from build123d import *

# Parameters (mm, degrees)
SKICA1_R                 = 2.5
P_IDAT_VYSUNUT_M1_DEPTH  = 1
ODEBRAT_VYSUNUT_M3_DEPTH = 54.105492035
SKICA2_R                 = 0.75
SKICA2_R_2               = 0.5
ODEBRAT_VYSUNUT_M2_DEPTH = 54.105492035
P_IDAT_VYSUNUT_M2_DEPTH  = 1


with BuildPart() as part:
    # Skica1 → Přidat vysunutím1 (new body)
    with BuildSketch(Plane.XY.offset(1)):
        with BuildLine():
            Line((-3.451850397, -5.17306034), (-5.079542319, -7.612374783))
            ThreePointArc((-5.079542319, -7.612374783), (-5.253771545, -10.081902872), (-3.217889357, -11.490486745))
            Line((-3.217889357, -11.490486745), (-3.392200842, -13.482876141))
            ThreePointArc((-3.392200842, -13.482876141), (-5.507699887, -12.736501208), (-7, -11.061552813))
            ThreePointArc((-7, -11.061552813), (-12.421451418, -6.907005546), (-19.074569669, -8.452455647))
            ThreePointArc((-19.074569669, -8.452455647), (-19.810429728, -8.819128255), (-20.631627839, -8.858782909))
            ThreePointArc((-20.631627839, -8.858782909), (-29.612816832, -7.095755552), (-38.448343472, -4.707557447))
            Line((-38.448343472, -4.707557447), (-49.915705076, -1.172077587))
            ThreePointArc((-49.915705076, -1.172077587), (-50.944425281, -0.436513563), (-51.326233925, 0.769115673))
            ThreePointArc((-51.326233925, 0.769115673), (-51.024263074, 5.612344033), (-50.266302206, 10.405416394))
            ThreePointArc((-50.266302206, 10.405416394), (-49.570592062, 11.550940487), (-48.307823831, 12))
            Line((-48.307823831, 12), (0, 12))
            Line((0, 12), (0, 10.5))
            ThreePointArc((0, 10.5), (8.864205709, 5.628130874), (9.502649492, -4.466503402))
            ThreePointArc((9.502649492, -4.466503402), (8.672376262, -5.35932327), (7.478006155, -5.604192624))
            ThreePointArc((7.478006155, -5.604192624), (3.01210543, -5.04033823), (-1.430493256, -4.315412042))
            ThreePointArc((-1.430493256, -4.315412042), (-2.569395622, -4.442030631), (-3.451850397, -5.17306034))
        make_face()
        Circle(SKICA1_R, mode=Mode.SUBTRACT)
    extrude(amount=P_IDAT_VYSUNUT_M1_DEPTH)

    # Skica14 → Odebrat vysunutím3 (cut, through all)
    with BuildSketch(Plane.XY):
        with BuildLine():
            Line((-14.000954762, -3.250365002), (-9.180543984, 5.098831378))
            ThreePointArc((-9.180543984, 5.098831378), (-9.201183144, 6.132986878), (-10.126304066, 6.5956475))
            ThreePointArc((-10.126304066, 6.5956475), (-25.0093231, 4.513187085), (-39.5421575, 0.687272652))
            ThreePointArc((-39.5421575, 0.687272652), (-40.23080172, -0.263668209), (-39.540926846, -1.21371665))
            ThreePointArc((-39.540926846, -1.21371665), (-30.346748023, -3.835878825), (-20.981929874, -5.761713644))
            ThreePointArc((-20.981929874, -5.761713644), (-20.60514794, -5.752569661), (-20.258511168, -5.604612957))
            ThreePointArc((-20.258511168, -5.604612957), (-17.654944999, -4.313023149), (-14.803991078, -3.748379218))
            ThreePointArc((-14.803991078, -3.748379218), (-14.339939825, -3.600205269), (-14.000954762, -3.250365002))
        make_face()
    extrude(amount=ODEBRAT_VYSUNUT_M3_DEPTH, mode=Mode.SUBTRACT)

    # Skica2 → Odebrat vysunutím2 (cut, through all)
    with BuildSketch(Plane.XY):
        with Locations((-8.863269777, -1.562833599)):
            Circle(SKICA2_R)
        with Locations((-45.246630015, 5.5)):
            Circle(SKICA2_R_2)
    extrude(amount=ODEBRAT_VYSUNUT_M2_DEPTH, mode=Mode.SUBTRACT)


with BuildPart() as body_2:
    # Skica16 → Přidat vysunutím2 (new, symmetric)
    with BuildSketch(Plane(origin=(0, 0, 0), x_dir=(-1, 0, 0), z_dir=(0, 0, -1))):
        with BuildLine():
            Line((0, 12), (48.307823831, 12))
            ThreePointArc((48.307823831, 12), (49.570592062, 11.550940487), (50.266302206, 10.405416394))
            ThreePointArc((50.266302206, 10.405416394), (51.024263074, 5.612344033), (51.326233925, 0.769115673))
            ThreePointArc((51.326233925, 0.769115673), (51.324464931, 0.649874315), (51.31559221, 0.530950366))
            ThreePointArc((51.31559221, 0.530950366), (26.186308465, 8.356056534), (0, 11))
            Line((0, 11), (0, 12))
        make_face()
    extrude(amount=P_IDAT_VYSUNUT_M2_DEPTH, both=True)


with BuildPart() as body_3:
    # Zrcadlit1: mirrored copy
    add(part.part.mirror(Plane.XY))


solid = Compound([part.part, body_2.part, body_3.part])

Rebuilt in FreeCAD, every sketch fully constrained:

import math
import FreeCAD as App
import Part
import Sketcher

V = App.Vector
Q = App.Units.Quantity

doc = App.newDocument("Part")
body = doc.addObject("PartDesign::Body", "Body")

# Sketch on XY plane
sketch1 = doc.addObject("Sketcher::SketchObject", "Sketch")
body.addObject(sketch1)
sketch1.AttachmentSupport = (doc.XY_Plane, [""])
sketch1.MapMode = "FlatFace"
sketch1.AttachmentOffset = App.Placement(V(0, 0, 1), App.Rotation())
sketch1.addGeometry([
    Part.LineSegment(V(-5.1, -7.6, 0), V(-3.5, -5.2, 0)),  # 0
    Part.ArcOfCircle(Part.Circle(V(-1.8, -6.3, 0), V(0, 0, 1), 2), math.radians(80), math.radians(146)),  # 1
    Part.ArcOfCircle(Part.Circle(V(20.8, 118.2, 0), V(0, 0, 1), 124.5), math.radians(-100.3), math.radians(-96.16)),  # 2
    Part.ArcOfCircle(Part.Circle(V(7.7, -3.6, 0), V(0, 0, 1), 2), math.radians(-96), math.radians(-25)),  # 3
    Part.ArcOfCircle(Part.Circle(V(0, 0, 0), V(0, 0, 1), 10.5), math.radians(-25), math.radians(90)),  # 4
    Part.LineSegment(V(0, 10.5, 0), V(0, 12, 0)),  # 5
    Part.LineSegment(V(0, 12, 0), V(-48.3, 12, 0)),  # 6
    Part.ArcOfCircle(Part.Circle(V(-48.3, 10, 0), V(0, 0, 1), 2), math.radians(90), math.radians(168)),  # 7
    Part.ArcOfCircle(Part.Circle(V(0, 0, 0), V(0, 0, 1), 51.3), math.radians(168.3), math.radians(179.14)),  # 8
    Part.ArcOfCircle(Part.Circle(V(-49.3, 0.7, 0), V(0, 0, 1), 2), math.radians(179), math.radians(253)),  # 9
    Part.LineSegment(V(-49.9, -1.2, 0), V(-38.4, -4.7, 0)),  # 10
    Part.ArcOfCircle(Part.Circle(V(0, 120, 0), V(0, 0, 1), 130.5), math.radians(-107.13), math.radians(-99.1)),  # 11
    Part.ArcOfCircle(Part.Circle(V(-20.3, -6.9, 0), V(0, 0, 1), 2), math.radians(-99), math.radians(-52)),  # 12
    Part.ArcOfCircle(Part.Circle(V(-14.1, -14.7, 0), V(0, 0, 1), 8), math.radians(27), math.radians(128)),  # 13
    Part.ArcOfCircle(Part.Circle(V(-3, -9, 0), V(0, 0, 1), 4.5), math.radians(-153), math.radians(-95)),  # 14
    Part.LineSegment(V(-3.4, -13.5, 0), V(-3.2, -11.5, 0)),  # 15
    Part.ArcOfCircle(Part.Circle(V(-3, -9, 0), V(0, 0, 1), 2.5), math.radians(146), math.radians(265)),  # 16
    Part.Circle(V(0, 0, 0), V(0, 0, 1), 2.5),  # 17
], False)
sketch1.addConstraint([
    Sketcher.Constraint("Tangent", 0, 2, 1, 2),
    Sketcher.Constraint("Tangent", 1, 1, 2, 1),
    Sketcher.Constraint("Tangent", 2, 2, 3, 1),
    Sketcher.Constraint("Tangent", 3, 2, 4, 1),
    Sketcher.Constraint("Coincident", 4, 2, 5, 1),
    Sketcher.Constraint("Coincident", 5, 2, 6, 1),
    Sketcher.Constraint("Tangent", 6, 2, 7, 1),
    Sketcher.Constraint("Tangent", 7, 2, 8, 1),
    Sketcher.Constraint("Tangent", 8, 2, 9, 1),
    Sketcher.Constraint("Tangent", 9, 2, 10, 1),
    Sketcher.Constraint("Tangent", 10, 2, 11, 1),
    Sketcher.Constraint("Tangent", 11, 2, 12, 1),
    Sketcher.Constraint("Tangent", 12, 2, 13, 2),
    Sketcher.Constraint("Tangent", 13, 1, 14, 1),
    Sketcher.Constraint("Coincident", 14, 2, 15, 1),
    Sketcher.Constraint("Coincident", 15, 2, 16, 2),
    Sketcher.Constraint("Tangent", 16, 1, 0, 1),
    Sketcher.Constraint("Vertical", 5),
    Sketcher.Constraint("Horizontal", 6),
    Sketcher.Constraint("Coincident", 4, 3, -1, 1),
    Sketcher.Constraint("Coincident", 8, 3, -1, 1),
    Sketcher.Constraint("Coincident", 17, 3, -1, 1),
    Sketcher.Constraint("Coincident", 16, 3, 14, 3),
    Sketcher.Constraint("Equal", 1, 3),
    Sketcher.Constraint("Equal", 3, 7),
    Sketcher.Constraint("Equal", 7, 9),
    Sketcher.Constraint("Equal", 9, 12),
    Sketcher.Constraint("Equal", 16, 17),
    Sketcher.Constraint("PointOnObject", 11, 3, -2),
    Sketcher.Constraint("PointOnObject", 4, 2, -2),
    Sketcher.Constraint("Diameter", 17, 5.0),
    Sketcher.Constraint("Radius", 1, 2.0),
    Sketcher.Constraint("Radius", 13, 8.0),
    Sketcher.Constraint("Radius", 2, 124.5),
    Sketcher.Constraint("Radius", 4, 10.5),
    Sketcher.Constraint("Radius", 11, 130.5),
    Sketcher.Constraint("Radius", 14, 4.5),
    Sketcher.Constraint("Angle", 15, Q("85 deg")),
    Sketcher.Constraint("Distance", 10, 12.0),
    Sketcher.Constraint("DistanceY", 5, 1, 5, 2, 1.5),
    Sketcher.Constraint("DistanceY", -1, 1, 11, 3, 120.0),
    Sketcher.Constraint("DistanceX", 14, 3, -1, 1, 3.0),
    Sketcher.Constraint("DistanceY", 14, 3, -1, 1, 9.0),
    Sketcher.Constraint("DistanceX", 13, 1, -1, 1, 7.0),
    Sketcher.Constraint("Radius", 8, 51.331996),
    Sketcher.Constraint("DistanceX", 14, 2, -1, 1, 3.392201),
    Sketcher.Constraint("DistanceY", 1, 3, 0, 2, 1.1101),
    Sketcher.Constraint("DistanceY", 1, 3, -1, 1, 6.283161),
    Sketcher.Constraint("DistanceX", -1, 1, 2, 3, 20.837781),
])
pad1 = doc.addObject("PartDesign::Pad", "Pad")
body.addObject(pad1)
pad1.Profile = sketch1
pad1.Length = 1

# Sketch on XY plane
sketch2 = doc.addObject("Sketcher::SketchObject", "Sketch001")
body.addObject(sketch2)
sketch2.AttachmentSupport = (doc.XY_Plane, [""])
sketch2.MapMode = "FlatFace"
sketch2.addGeometry([
    Part.LineSegment(V(-14, -3.3, 0), V(-9.2, 5.1, 0)),  # 0
    Part.ArcOfCircle(Part.Circle(V(-10, 5.6, 0), V(0, 0, 1), 1), math.radians(-30), math.radians(95)),  # 1
    Part.ArcOfCircle(Part.Circle(V(0, -120, 0), V(0, 0, 1), 127), math.radians(94.57), math.radians(108.14)),  # 2
    Part.ArcOfCircle(Part.Circle(V(-39.2, -0.3, 0), V(0, 0, 1), 1), math.radians(108), math.radians(252)),  # 3
    Part.ArcOfCircle(Part.Circle(V(0, 120, 0), V(0, 0, 1), 127.5), math.radians(-108.07), math.radians(-99.47)),  # 4
    Part.ArcOfCircle(Part.Circle(V(-20.8, -4.8, 0), V(0, 0, 1), 1), math.radians(-99), math.radians(-56)),  # 5
    Part.ArcOfCircle(Part.Circle(V(-14.1, -14.7, 0), V(0, 0, 1), 11), math.radians(94), math.radians(124)),  # 6
    Part.ArcOfCircle(Part.Circle(V(-14.9, -2.8, 0), V(0, 0, 1), 1), math.radians(-86), math.radians(-30)),  # 7
], False)
sketch2.addConstraint([
    Sketcher.Constraint("Tangent", 0, 2, 1, 1),
    Sketcher.Constraint("Tangent", 1, 2, 2, 1),
    Sketcher.Constraint("Tangent", 2, 2, 3, 1),
    Sketcher.Constraint("Tangent", 3, 2, 4, 1),
    Sketcher.Constraint("Tangent", 4, 2, 5, 1),
    Sketcher.Constraint("Tangent", 5, 2, 6, 2),
    Sketcher.Constraint("Tangent", 6, 1, 7, 1),
    Sketcher.Constraint("Tangent", 7, 2, 0, 1),
    Sketcher.Constraint("Equal", 1, 3),
    Sketcher.Constraint("Equal", 3, 5),
    Sketcher.Constraint("Equal", 5, 7),
    Sketcher.Constraint("Symmetric", 2, 3, 4, 3, -1, 1),
    Sketcher.Constraint("PointOnObject", 2, 3, -2),
    Sketcher.Constraint("Radius", 1, 1.0),
    Sketcher.Constraint("Radius", 2, 127.0),
    Sketcher.Constraint("Radius", 6, 11.0),
    Sketcher.Constraint("Radius", 4, 127.5),
    Sketcher.Constraint("Angle", 0, Q("60 deg")),
    Sketcher.Constraint("DistanceY", 2, 3, -1, 1, 120.0),
    Sketcher.Constraint("DistanceX", 5, 2, 6, 3, 6.1474),
    Sketcher.Constraint("Distance", 0, 9.640822),
    Sketcher.Constraint("DistanceX", 1, 3, -1, 1, 10.046569),
])
pocket1 = doc.addObject("PartDesign::Pocket", "Pocket")
body.addObject(pocket1)
pocket1.Profile = sketch2
pocket1.Type = "ThroughAll"
pocket1.Reversed = True

# Sketch on XY plane
sketch3 = doc.addObject("Sketcher::SketchObject", "Sketch002")
body.addObject(sketch3)
sketch3.AttachmentSupport = (doc.XY_Plane, [""])
sketch3.MapMode = "FlatFace"
sketch3.addGeometry([
    Part.Circle(V(-8.9, -1.6, 0), V(0, 0, 1), 0.8),
    Part.Circle(V(-45.2, 5.5, 0), V(0, 0, 1), 0.5),
], False)
sketch3.addConstraint([
    Sketcher.Constraint("Diameter", 1, 1.0),
    Sketcher.Constraint("Diameter", 0, 1.5),
    Sketcher.Constraint("DistanceY", -1, 1, 1, 3, 5.5),
    Sketcher.Constraint("DistanceX", 0, 3, -1, 1, 8.86327),
    Sketcher.Constraint("DistanceX", 1, 3, -1, 1, 45.24663),
    Sketcher.Constraint("DistanceY", 0, 3, -1, 1, 1.562834),
])
pocket2 = doc.addObject("PartDesign::Pocket", "Pocket001")
body.addObject(pocket2)
pocket2.Profile = sketch3
pocket2.Type = "ThroughAll"
pocket2.Reversed = True
body2 = doc.addObject("PartDesign::Body", "Body001")

# Sketch on XY plane
sketch4 = doc.addObject("Sketcher::SketchObject", "Sketch003")
body2.addObject(sketch4)
sketch4.AttachmentSupport = (doc.getObject("XY_Plane001"), [""])
sketch4.MapMode = "FlatFace"
sketch4.addGeometry([
    Part.LineSegment(V(-48.31, 12, 0), V(0, 12, 0)),  # 0
    Part.LineSegment(V(0, 12, 0), V(0, 11, 0)),  # 1
    Part.ArcOfCircle(Part.Circle(V(0, -120, 0), V(0, 0, 1), 131), math.radians(90), math.radians(113)),  # 2
    Part.ArcOfCircle(Part.Circle(V(-49.33, 0.74, 0), V(0, 0, 1), 2), math.radians(179.14), math.radians(185.98)),  # 3
    Part.ArcOfCircle(Part.Circle(V(0, 0, 0), V(0, 0, 1), 51.33), math.radians(168.3), math.radians(179.14)),  # 4
    Part.ArcOfCircle(Part.Circle(V(-48.31, 10, 0), V(0, 0, 1), 2), math.radians(90), math.radians(168)),  # 5
], False)
sketch4.addConstraint([
    Sketcher.Constraint("Coincident", 0, 2, 1, 1),
    Sketcher.Constraint("Coincident", 1, 2, 2, 1),
    Sketcher.Constraint("Coincident", 2, 2, 3, 2),
    Sketcher.Constraint("Tangent", 3, 1, 4, 2),
    Sketcher.Constraint("Tangent", 4, 1, 5, 2),
    Sketcher.Constraint("Tangent", 5, 1, 0, 1),
    Sketcher.Constraint("Horizontal", 0),
    Sketcher.Constraint("Vertical", 1),
    Sketcher.Constraint("Coincident", 4, 3, -1, 1),
    Sketcher.Constraint("Equal", 3, 5),
    Sketcher.Constraint("PointOnObject", 2, 3, -2),
    Sketcher.Constraint("PointOnObject", 0, 2, -2),
    Sketcher.Constraint("Radius", 2, 131.0),
    Sketcher.Constraint("Radius", 3, 2.0),
    Sketcher.Constraint("DistanceY", 1, 2, 1, 1, 1.0),
    Sketcher.Constraint("DistanceY", 2, 3, -1, 1, 120.0),
    Sketcher.Constraint("Radius", 4, 51.331996),
    Sketcher.Constraint("DistanceY", 2, 2, 3, 3, 0.208199),
])
pad2 = doc.addObject("PartDesign::Pad", "Pad001")
body2.addObject(pad2)
pad2.Profile = sketch4
pad2.Length = 2
pad2.Midplane = True
body3 = doc.addObject("PartDesign::Body", "Body002")
doc.recompute()

mirroring = doc.addObject("Part::Mirroring", "Mirroring")
mirroring.Source = body
mirroring.Base = V(0, 0, 0)
mirroring.Normal = V(0, 0, 1)
body3.BaseFeature = mirroring
doc.recompute()
mirroring.Visibility = False

doc.recompute()
